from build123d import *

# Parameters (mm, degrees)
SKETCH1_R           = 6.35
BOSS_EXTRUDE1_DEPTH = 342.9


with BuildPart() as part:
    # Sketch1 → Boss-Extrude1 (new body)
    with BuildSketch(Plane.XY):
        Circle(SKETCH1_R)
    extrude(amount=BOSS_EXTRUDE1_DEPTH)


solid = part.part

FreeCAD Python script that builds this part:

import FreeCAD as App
import Part
import Sketcher
from FreeCAD import Vector
Q = App.Units.Quantity

doc = App.newDocument("Part")
body = doc.addObject("PartDesign::Body", "Body")

# Sketch on XY plane
sketch1 = body.newObject("Sketcher::SketchObject", "Sketch")
sketch1.AttachmentSupport = (doc.getObject("XY_Plane"), [""])
sketch1.MapMode = "FlatFace"
sketch1.addGeometry(Part.Circle(Vector(0, 0, 0), Vector(0, 0, 1), 6), False)
sketch1.addConstraint([
    Sketcher.Constraint("Coincident", 0, 3, -1, 1),
    Sketcher.Constraint("Diameter", 0, Q("0.5 in")),
])
pad1 = body.newObject("PartDesign::Pad", "Pad")
pad1.Profile = sketch1
pad1.Length = Q("13.5 in")

doc.recompute()
